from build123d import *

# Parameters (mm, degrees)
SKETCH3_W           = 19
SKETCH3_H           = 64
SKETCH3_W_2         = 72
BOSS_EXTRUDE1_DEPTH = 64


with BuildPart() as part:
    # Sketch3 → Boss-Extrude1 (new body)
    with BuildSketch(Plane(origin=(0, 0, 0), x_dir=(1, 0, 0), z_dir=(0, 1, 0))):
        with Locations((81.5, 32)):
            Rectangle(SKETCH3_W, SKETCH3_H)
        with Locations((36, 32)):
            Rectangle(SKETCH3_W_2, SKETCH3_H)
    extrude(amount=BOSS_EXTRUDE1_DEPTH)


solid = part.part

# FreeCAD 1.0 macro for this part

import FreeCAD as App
import Part
import Sketcher
from FreeCAD import Vector
Q = App.Units.Quantity


def add_polygon(sketch, points):
    """Adds a closed chain of lines whose ends are joined by coincident constraints."""
    first, n = sketch.GeometryCount, len(points)
    for a, b in zip(points, points[1:] + points[:1]):
        sketch.addGeometry(Part.LineSegment(App.Vector(*a, 0), App.Vector(*b, 0)), False)
    for i in range(n):
        sketch.addConstraint(Sketcher.Constraint("Coincident", first + i, 2, first + (i + 1) % n, 1))

doc = App.newDocument("Part")
params = doc.addObject("Spreadsheet::Sheet", "Params")
for row, (alias, value) in enumerate([
    ("sketch1_width", "91 mm"),
    ("sketch1_height", "64 mm"),
    ("pad1_length", "64 mm"),
], start=1):
    params.set(f"A{row}", alias)
    params.set(f"B{row}", "=" + value)
    params.setAlias(f"B{row}", alias)

body = doc.addObject("PartDesign::Body", "Body")

# Sketch on XZ plane
sketch1 = body.newObject("Sketcher::SketchObject", "Sketch")
sketch1.AttachmentSupport = (doc.getObject("XZ_Plane"), [""])
sketch1.MapMode = "FlatFace"
add_polygon(sketch1, [(91, 0), (91, -64), (0, -64), (0, 0)])  # lines 0-3
sketch1.addConstraint([
    Sketcher.Constraint("Vertical", 0),
    Sketcher.Constraint("Horizontal", 1),
    Sketcher.Constraint("Vertical", 2),
    Sketcher.Constraint("Horizontal", 3),
    Sketcher.Constraint("Coincident", 2, 2, -1, 1),
    Sketcher.Constraint("DistanceX", 1, 2, 1, 1, Q("91 mm")),
    Sketcher.Constraint("DistanceY", 0, 2, 0, 1, Q("64 mm")),
])
sketch1.setExpression("Constraints[9]", "Params.sketch1_width")
sketch1.setExpression("Constraints[10]", "Params.sketch1_height")
pad1 = body.newObject("PartDesign::Pad", "Pad")
pad1.Profile = sketch1
pad1.setExpression("Length", "Params.pad1_length")
pad1.Reversed = True

doc.recompute()
